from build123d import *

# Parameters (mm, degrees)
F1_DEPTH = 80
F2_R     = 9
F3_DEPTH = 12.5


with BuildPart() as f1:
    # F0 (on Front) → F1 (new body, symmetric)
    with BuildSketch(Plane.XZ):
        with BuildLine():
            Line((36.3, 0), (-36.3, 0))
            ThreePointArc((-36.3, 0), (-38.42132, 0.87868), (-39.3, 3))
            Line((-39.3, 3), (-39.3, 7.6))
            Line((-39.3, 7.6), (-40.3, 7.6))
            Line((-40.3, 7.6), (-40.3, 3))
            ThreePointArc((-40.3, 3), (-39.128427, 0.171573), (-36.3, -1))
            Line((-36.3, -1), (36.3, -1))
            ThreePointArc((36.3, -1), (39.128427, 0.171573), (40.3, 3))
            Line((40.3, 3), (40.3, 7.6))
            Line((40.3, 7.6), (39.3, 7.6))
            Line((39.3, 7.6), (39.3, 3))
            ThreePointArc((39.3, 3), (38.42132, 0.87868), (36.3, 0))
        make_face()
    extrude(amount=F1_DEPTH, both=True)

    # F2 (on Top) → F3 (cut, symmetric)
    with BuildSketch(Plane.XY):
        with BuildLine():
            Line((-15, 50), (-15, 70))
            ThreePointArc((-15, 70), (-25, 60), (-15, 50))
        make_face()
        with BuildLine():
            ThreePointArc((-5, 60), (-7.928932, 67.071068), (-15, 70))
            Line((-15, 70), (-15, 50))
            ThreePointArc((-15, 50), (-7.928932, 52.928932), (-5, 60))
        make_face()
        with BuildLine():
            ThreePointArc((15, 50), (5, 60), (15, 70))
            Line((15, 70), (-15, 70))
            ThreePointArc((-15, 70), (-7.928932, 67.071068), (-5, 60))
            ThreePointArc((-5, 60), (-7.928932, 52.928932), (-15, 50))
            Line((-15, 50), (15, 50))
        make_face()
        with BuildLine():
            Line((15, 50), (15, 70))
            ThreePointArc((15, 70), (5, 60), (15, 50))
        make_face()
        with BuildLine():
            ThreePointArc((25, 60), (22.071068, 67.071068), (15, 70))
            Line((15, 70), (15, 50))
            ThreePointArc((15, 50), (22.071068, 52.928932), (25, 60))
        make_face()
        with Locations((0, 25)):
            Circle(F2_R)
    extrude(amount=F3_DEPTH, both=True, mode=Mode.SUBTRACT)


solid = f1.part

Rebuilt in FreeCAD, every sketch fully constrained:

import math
import FreeCAD as App
import Part
import Sketcher

V = App.Vector

doc = App.newDocument("Part")
body = doc.addObject("PartDesign::Body", "Body")

# Sketch on XZ plane
sketch1 = doc.addObject("Sketcher::SketchObject", "Sketch")
body.addObject(sketch1)
sketch1.AttachmentSupport = (doc.XZ_Plane, [""])
sketch1.MapMode = "FlatFace"
sketch1.addGeometry(Part.LineSegment(V(36.3, 0, 0), V(-36.3, 0, 0)), False)
sketch1.addGeometry(Part.ArcOfCircle(Part.Circle(V(-36.3, 3, 0), V(0, 0, 1), 3), math.radians(-180), math.radians(-90)), False)
sketch1.addGeometry(Part.LineSegment(V(-39.3, 3, 0), V(-39.3, 7.6, 0)), False)
sketch1.addGeometry(Part.LineSegment(V(-39.3, 7.6, 0), V(-40.3, 7.6, 0)), False)
sketch1.addGeometry(Part.LineSegment(V(-40.3, 7.6, 0), V(-40.3, 3, 0)), False)
sketch1.addGeometry(Part.ArcOfCircle(Part.Circle(V(-36.3, 3, 0), V(0, 0, 1), 4), math.radians(-180), math.radians(-90)), False)
sketch1.addGeometry(Part.LineSegment(V(-36.3, -1, 0), V(36.3, -1, 0)), False)
sketch1.addGeometry(Part.ArcOfCircle(Part.Circle(V(36.3, 3, 0), V(0, 0, 1), 4), math.radians(-90), math.radians(0)), False)
sketch1.addGeometry(Part.LineSegment(V(40.3, 3, 0), V(40.3, 7.6, 0)), False)
sketch1.addGeometry(Part.LineSegment(V(40.3, 7.6, 0), V(39.3, 7.6, 0)), False)
sketch1.addGeometry(Part.LineSegment(V(39.3, 7.6, 0), V(39.3, 3, 0)), False)
sketch1.addGeometry(Part.ArcOfCircle(Part.Circle(V(36.3, 3, 0), V(0, 0, 1), 3), math.radians(-90), math.radians(0)), False)
sketch1.addConstraint(Sketcher.Constraint("Tangent", 0, 2, 1, 2))
sketch1.addConstraint(Sketcher.Constraint("Tangent", 1, 1, 2, 1))
sketch1.addConstraint(Sketcher.Constraint("Coincident", 2, 2, 3, 1))
sketch1.addConstraint(Sketcher.Constraint("Coincident", 3, 2, 4, 1))
sketch1.addConstraint(Sketcher.Constraint("Tangent", 4, 2, 5, 1))
sketch1.addConstraint(Sketcher.Constraint("Tangent", 5, 2, 6, 1))
sketch1.addConstraint(Sketcher.Constraint("Tangent", 6, 2, 7, 1))
sketch1.addConstraint(Sketcher.Constraint("Tangent", 7, 2, 8, 1))
sketch1.addConstraint(Sketcher.Constraint("Coincident", 8, 2, 9, 1))
sketch1.addConstraint(Sketcher.Constraint("Coincident", 9, 2, 10, 1))
sketch1.addConstraint(Sketcher.Constraint("Tangent", 10, 2, 11, 2))
sketch1.addConstraint(Sketcher.Constraint("Tangent", 11, 1, 0, 1))
sketch1.addConstraint(Sketcher.Constraint("Horizontal", 0))
sketch1.addConstraint(Sketcher.Constraint("Vertical", 2))
sketch1.addConstraint(Sketcher.Constraint("Horizontal", 3))
sketch1.addConstraint(Sketcher.Constraint("Vertical", 4))
sketch1.addConstraint(Sketcher.Constraint("Horizontal", 6))
sketch1.addConstraint(Sketcher.Constraint("Vertical", 8))
sketch1.addConstraint(Sketcher.Constraint("Horizontal", 9))
sketch1.addConstraint(Sketcher.Constraint("Vertical", 10))
sketch1.addConstraint(Sketcher.Constraint("Coincident", 5, 3, 1, 3))
sketch1.addConstraint(Sketcher.Constraint("Coincident", 11, 3, 7, 3))
sketch1.addConstraint(Sketcher.Constraint("Equal", 5, 7))
sketch1.addConstraint(Sketcher.Constraint("Symmetric", 0, 2, 11, 1, -1, 1))
sketch1.addConstraint(Sketcher.Constraint("Horizontal", 3, 2, 8, 2))
sketch1.addConstraint(Sketcher.Constraint("Radius", 1, 3.000001))
sketch1.addConstraint(Sketcher.Constraint("Radius", 5, 4.0))
sketch1.addConstraint(Sketcher.Constraint("DistanceX", 0, 2, 0, 1, 72.6))
sketch1.addConstraint(Sketcher.Constraint("DistanceY", 2, 1, 2, 2, 4.6))
pad1 = doc.addObject("PartDesign::Pad", "Pad")
body.addObject(pad1)
pad1.Profile = sketch1
pad1.Length = 160
pad1.Midplane = True

# Sketch on XY plane
sketch2 = doc.addObject("Sketcher::SketchObject", "Sketch001")
body.addObject(sketch2)
sketch2.AttachmentSupport = (doc.XY_Plane, [""])
sketch2.MapMode = "FlatFace"
sketch2.addGeometry(Part.ArcOfCircle(Part.Circle(V(-15, 60, 0), V(0, 0, 1), 10), math.radians(90), math.radians(270)), False)
sketch2.addGeometry(Part.LineSegment(V(-15, 50, 0), V(15, 50, 0)), False)
sketch2.addGeometry(Part.ArcOfCircle(Part.Circle(V(15, 60, 0), V(0, 0, 1), 10), math.radians(-90), math.radians(0)), False)
sketch2.addGeometry(Part.ArcOfCircle(Part.Circle(V(15, 60, 0), V(0, 0, 1), 10), math.radians(0), math.radians(90)), False)
sketch2.addGeometry(Part.LineSegment(V(15, 70, 0), V(-15, 70, 0)), False)
sketch2.addGeometry(Part.Circle(V(0, 25, 0), V(0, 0, 1), 9), False)
sketch2.addConstraint(Sketcher.Constraint("Tangent", 0, 2, 1, 1))
sketch2.addConstraint(Sketcher.Constraint("Tangent", 1, 2, 2, 1))
sketch2.addConstraint(Sketcher.Constraint("Tangent", 2, 2, 3, 1))
sketch2.addConstraint(Sketcher.Constraint("Tangent", 3, 2, 4, 1))
sketch2.addConstraint(Sketcher.Constraint("Tangent", 4, 2, 0, 1))
sketch2.addConstraint(Sketcher.Constraint("Horizontal", 1))
sketch2.addConstraint(Sketcher.Constraint("Horizontal", 4))
sketch2.addConstraint(Sketcher.Constraint("Equal", 0, 2))
sketch2.addConstraint(Sketcher.Constraint("PointOnObject", 5, 3, -2))
sketch2.addConstraint(Sketcher.Constraint("Horizontal", 3, 3, 2, 2))
sketch2.addConstraint(Sketcher.Constraint("Diameter", 5, 18.0))
sketch2.addConstraint(Sketcher.Constraint("Radius", 0, 10.0))
sketch2.addConstraint(Sketcher.Constraint("DistanceX", 1, 1, 1, 2, 30.0))
sketch2.addConstraint(Sketcher.Constraint("DistanceX", 0, 3, -1, 1, 15.0))
sketch2.addConstraint(Sketcher.Constraint("DistanceY", -1, 1, 0, 3, 60.0))
sketch2.addConstraint(Sketcher.Constraint("DistanceY", -1, 1, 5, 3, 25.0))
pocket1 = doc.addObject("PartDesign::Pocket", "Pocket")
body.addObject(pocket1)
pocket1.Profile = sketch2
pocket1.Length = 25
pocket1.Midplane = True

doc.recompute()
